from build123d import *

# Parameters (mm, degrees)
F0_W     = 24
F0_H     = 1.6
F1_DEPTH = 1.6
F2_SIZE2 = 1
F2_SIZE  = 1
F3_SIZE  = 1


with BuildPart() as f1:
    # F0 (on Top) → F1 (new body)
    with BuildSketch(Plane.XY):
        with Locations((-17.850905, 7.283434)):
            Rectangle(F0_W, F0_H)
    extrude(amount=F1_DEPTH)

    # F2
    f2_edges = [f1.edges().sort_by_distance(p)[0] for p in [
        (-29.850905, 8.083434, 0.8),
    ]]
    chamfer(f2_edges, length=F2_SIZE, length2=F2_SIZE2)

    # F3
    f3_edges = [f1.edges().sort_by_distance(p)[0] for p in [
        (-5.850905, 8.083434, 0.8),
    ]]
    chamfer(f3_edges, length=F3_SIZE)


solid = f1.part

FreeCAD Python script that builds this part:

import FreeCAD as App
import Part
import Sketcher

V = App.Vector
Q = App.Units.Quantity


def edges_at(feature, points):
    """Names of the edges that pass closest to the given points."""
    edges = feature.Shape.Edges
    near = lambda p: min(range(len(edges)), key=lambda i: edges[i].distToShape(Part.Vertex(*p))[0])
    return sorted({f"Edge{near(p) + 1}" for p in points})

doc = App.newDocument("Part")
body = doc.addObject("PartDesign::Body", "Body")

sketch1 = body.newObject("Sketcher::SketchObject", "Sketch")
sketch1.AttachmentSupport = (doc.getObject("XY_Plane"), [""])
sketch1.MapMode = "FlatFace"
sketch1.addGeometry(Part.LineSegment(V(-29.9, 8.1, 0), V(-29.9, 6.5, 0)), False)
sketch1.addGeometry(Part.LineSegment(V(-29.9, 6.5, 0), V(-5.9, 6.5, 0)), False)
sketch1.addGeometry(Part.LineSegment(V(-5.9, 6.5, 0), V(-5.9, 8.1, 0)), False)
sketch1.addGeometry(Part.LineSegment(V(-5.9, 8.1, 0), V(-29.9, 8.1, 0)), False)
sketch1.addConstraint(Sketcher.Constraint("Coincident", 0, 2, 1, 1))
sketch1.addConstraint(Sketcher.Constraint("Coincident", 1, 2, 2, 1))
sketch1.addConstraint(Sketcher.Constraint("Coincident", 2, 2, 3, 1))
sketch1.addConstraint(Sketcher.Constraint("Coincident", 3, 2, 0, 1))
sketch1.addConstraint(Sketcher.Constraint("Vertical", 0))
sketch1.addConstraint(Sketcher.Constraint("Horizontal", 1))
sketch1.addConstraint(Sketcher.Constraint("Vertical", 2))
sketch1.addConstraint(Sketcher.Constraint("Horizontal", 3))
sketch1.addConstraint(Sketcher.Constraint("DistanceX", 1, 1, 1, 2, Q("24 mm")))
sketch1.addConstraint(Sketcher.Constraint("DistanceY", 0, 2, 0, 1, Q("1.6 mm")))
sketch1.addConstraint(Sketcher.Constraint("DistanceX", 0, 2, -1, 1, Q("29.850905 mm")))
sketch1.addConstraint(Sketcher.Constraint("DistanceY", -1, 1, 0, 2, Q("6.483434 mm")))
pad1 = body.newObject("PartDesign::Pad", "Pad")
pad1.Profile = sketch1
pad1.Length = 1.6
doc.recompute()

chamfer = body.newObject("PartDesign::Chamfer", "Chamfer")
chamfer.Base = (pad1, edges_at(pad1, [(-29.851, 8.083, 0.8)]))
chamfer.ChamferType = "Two distances"
chamfer.Size = 1
chamfer.Size2 = 1
doc.recompute()

chamfer2 = body.newObject("PartDesign::Chamfer", "Chamfer001")
chamfer2.Base = (chamfer, edges_at(chamfer, [(-5.851, 8.083, 0.8)]))
chamfer2.Size = 1

doc.recompute()
